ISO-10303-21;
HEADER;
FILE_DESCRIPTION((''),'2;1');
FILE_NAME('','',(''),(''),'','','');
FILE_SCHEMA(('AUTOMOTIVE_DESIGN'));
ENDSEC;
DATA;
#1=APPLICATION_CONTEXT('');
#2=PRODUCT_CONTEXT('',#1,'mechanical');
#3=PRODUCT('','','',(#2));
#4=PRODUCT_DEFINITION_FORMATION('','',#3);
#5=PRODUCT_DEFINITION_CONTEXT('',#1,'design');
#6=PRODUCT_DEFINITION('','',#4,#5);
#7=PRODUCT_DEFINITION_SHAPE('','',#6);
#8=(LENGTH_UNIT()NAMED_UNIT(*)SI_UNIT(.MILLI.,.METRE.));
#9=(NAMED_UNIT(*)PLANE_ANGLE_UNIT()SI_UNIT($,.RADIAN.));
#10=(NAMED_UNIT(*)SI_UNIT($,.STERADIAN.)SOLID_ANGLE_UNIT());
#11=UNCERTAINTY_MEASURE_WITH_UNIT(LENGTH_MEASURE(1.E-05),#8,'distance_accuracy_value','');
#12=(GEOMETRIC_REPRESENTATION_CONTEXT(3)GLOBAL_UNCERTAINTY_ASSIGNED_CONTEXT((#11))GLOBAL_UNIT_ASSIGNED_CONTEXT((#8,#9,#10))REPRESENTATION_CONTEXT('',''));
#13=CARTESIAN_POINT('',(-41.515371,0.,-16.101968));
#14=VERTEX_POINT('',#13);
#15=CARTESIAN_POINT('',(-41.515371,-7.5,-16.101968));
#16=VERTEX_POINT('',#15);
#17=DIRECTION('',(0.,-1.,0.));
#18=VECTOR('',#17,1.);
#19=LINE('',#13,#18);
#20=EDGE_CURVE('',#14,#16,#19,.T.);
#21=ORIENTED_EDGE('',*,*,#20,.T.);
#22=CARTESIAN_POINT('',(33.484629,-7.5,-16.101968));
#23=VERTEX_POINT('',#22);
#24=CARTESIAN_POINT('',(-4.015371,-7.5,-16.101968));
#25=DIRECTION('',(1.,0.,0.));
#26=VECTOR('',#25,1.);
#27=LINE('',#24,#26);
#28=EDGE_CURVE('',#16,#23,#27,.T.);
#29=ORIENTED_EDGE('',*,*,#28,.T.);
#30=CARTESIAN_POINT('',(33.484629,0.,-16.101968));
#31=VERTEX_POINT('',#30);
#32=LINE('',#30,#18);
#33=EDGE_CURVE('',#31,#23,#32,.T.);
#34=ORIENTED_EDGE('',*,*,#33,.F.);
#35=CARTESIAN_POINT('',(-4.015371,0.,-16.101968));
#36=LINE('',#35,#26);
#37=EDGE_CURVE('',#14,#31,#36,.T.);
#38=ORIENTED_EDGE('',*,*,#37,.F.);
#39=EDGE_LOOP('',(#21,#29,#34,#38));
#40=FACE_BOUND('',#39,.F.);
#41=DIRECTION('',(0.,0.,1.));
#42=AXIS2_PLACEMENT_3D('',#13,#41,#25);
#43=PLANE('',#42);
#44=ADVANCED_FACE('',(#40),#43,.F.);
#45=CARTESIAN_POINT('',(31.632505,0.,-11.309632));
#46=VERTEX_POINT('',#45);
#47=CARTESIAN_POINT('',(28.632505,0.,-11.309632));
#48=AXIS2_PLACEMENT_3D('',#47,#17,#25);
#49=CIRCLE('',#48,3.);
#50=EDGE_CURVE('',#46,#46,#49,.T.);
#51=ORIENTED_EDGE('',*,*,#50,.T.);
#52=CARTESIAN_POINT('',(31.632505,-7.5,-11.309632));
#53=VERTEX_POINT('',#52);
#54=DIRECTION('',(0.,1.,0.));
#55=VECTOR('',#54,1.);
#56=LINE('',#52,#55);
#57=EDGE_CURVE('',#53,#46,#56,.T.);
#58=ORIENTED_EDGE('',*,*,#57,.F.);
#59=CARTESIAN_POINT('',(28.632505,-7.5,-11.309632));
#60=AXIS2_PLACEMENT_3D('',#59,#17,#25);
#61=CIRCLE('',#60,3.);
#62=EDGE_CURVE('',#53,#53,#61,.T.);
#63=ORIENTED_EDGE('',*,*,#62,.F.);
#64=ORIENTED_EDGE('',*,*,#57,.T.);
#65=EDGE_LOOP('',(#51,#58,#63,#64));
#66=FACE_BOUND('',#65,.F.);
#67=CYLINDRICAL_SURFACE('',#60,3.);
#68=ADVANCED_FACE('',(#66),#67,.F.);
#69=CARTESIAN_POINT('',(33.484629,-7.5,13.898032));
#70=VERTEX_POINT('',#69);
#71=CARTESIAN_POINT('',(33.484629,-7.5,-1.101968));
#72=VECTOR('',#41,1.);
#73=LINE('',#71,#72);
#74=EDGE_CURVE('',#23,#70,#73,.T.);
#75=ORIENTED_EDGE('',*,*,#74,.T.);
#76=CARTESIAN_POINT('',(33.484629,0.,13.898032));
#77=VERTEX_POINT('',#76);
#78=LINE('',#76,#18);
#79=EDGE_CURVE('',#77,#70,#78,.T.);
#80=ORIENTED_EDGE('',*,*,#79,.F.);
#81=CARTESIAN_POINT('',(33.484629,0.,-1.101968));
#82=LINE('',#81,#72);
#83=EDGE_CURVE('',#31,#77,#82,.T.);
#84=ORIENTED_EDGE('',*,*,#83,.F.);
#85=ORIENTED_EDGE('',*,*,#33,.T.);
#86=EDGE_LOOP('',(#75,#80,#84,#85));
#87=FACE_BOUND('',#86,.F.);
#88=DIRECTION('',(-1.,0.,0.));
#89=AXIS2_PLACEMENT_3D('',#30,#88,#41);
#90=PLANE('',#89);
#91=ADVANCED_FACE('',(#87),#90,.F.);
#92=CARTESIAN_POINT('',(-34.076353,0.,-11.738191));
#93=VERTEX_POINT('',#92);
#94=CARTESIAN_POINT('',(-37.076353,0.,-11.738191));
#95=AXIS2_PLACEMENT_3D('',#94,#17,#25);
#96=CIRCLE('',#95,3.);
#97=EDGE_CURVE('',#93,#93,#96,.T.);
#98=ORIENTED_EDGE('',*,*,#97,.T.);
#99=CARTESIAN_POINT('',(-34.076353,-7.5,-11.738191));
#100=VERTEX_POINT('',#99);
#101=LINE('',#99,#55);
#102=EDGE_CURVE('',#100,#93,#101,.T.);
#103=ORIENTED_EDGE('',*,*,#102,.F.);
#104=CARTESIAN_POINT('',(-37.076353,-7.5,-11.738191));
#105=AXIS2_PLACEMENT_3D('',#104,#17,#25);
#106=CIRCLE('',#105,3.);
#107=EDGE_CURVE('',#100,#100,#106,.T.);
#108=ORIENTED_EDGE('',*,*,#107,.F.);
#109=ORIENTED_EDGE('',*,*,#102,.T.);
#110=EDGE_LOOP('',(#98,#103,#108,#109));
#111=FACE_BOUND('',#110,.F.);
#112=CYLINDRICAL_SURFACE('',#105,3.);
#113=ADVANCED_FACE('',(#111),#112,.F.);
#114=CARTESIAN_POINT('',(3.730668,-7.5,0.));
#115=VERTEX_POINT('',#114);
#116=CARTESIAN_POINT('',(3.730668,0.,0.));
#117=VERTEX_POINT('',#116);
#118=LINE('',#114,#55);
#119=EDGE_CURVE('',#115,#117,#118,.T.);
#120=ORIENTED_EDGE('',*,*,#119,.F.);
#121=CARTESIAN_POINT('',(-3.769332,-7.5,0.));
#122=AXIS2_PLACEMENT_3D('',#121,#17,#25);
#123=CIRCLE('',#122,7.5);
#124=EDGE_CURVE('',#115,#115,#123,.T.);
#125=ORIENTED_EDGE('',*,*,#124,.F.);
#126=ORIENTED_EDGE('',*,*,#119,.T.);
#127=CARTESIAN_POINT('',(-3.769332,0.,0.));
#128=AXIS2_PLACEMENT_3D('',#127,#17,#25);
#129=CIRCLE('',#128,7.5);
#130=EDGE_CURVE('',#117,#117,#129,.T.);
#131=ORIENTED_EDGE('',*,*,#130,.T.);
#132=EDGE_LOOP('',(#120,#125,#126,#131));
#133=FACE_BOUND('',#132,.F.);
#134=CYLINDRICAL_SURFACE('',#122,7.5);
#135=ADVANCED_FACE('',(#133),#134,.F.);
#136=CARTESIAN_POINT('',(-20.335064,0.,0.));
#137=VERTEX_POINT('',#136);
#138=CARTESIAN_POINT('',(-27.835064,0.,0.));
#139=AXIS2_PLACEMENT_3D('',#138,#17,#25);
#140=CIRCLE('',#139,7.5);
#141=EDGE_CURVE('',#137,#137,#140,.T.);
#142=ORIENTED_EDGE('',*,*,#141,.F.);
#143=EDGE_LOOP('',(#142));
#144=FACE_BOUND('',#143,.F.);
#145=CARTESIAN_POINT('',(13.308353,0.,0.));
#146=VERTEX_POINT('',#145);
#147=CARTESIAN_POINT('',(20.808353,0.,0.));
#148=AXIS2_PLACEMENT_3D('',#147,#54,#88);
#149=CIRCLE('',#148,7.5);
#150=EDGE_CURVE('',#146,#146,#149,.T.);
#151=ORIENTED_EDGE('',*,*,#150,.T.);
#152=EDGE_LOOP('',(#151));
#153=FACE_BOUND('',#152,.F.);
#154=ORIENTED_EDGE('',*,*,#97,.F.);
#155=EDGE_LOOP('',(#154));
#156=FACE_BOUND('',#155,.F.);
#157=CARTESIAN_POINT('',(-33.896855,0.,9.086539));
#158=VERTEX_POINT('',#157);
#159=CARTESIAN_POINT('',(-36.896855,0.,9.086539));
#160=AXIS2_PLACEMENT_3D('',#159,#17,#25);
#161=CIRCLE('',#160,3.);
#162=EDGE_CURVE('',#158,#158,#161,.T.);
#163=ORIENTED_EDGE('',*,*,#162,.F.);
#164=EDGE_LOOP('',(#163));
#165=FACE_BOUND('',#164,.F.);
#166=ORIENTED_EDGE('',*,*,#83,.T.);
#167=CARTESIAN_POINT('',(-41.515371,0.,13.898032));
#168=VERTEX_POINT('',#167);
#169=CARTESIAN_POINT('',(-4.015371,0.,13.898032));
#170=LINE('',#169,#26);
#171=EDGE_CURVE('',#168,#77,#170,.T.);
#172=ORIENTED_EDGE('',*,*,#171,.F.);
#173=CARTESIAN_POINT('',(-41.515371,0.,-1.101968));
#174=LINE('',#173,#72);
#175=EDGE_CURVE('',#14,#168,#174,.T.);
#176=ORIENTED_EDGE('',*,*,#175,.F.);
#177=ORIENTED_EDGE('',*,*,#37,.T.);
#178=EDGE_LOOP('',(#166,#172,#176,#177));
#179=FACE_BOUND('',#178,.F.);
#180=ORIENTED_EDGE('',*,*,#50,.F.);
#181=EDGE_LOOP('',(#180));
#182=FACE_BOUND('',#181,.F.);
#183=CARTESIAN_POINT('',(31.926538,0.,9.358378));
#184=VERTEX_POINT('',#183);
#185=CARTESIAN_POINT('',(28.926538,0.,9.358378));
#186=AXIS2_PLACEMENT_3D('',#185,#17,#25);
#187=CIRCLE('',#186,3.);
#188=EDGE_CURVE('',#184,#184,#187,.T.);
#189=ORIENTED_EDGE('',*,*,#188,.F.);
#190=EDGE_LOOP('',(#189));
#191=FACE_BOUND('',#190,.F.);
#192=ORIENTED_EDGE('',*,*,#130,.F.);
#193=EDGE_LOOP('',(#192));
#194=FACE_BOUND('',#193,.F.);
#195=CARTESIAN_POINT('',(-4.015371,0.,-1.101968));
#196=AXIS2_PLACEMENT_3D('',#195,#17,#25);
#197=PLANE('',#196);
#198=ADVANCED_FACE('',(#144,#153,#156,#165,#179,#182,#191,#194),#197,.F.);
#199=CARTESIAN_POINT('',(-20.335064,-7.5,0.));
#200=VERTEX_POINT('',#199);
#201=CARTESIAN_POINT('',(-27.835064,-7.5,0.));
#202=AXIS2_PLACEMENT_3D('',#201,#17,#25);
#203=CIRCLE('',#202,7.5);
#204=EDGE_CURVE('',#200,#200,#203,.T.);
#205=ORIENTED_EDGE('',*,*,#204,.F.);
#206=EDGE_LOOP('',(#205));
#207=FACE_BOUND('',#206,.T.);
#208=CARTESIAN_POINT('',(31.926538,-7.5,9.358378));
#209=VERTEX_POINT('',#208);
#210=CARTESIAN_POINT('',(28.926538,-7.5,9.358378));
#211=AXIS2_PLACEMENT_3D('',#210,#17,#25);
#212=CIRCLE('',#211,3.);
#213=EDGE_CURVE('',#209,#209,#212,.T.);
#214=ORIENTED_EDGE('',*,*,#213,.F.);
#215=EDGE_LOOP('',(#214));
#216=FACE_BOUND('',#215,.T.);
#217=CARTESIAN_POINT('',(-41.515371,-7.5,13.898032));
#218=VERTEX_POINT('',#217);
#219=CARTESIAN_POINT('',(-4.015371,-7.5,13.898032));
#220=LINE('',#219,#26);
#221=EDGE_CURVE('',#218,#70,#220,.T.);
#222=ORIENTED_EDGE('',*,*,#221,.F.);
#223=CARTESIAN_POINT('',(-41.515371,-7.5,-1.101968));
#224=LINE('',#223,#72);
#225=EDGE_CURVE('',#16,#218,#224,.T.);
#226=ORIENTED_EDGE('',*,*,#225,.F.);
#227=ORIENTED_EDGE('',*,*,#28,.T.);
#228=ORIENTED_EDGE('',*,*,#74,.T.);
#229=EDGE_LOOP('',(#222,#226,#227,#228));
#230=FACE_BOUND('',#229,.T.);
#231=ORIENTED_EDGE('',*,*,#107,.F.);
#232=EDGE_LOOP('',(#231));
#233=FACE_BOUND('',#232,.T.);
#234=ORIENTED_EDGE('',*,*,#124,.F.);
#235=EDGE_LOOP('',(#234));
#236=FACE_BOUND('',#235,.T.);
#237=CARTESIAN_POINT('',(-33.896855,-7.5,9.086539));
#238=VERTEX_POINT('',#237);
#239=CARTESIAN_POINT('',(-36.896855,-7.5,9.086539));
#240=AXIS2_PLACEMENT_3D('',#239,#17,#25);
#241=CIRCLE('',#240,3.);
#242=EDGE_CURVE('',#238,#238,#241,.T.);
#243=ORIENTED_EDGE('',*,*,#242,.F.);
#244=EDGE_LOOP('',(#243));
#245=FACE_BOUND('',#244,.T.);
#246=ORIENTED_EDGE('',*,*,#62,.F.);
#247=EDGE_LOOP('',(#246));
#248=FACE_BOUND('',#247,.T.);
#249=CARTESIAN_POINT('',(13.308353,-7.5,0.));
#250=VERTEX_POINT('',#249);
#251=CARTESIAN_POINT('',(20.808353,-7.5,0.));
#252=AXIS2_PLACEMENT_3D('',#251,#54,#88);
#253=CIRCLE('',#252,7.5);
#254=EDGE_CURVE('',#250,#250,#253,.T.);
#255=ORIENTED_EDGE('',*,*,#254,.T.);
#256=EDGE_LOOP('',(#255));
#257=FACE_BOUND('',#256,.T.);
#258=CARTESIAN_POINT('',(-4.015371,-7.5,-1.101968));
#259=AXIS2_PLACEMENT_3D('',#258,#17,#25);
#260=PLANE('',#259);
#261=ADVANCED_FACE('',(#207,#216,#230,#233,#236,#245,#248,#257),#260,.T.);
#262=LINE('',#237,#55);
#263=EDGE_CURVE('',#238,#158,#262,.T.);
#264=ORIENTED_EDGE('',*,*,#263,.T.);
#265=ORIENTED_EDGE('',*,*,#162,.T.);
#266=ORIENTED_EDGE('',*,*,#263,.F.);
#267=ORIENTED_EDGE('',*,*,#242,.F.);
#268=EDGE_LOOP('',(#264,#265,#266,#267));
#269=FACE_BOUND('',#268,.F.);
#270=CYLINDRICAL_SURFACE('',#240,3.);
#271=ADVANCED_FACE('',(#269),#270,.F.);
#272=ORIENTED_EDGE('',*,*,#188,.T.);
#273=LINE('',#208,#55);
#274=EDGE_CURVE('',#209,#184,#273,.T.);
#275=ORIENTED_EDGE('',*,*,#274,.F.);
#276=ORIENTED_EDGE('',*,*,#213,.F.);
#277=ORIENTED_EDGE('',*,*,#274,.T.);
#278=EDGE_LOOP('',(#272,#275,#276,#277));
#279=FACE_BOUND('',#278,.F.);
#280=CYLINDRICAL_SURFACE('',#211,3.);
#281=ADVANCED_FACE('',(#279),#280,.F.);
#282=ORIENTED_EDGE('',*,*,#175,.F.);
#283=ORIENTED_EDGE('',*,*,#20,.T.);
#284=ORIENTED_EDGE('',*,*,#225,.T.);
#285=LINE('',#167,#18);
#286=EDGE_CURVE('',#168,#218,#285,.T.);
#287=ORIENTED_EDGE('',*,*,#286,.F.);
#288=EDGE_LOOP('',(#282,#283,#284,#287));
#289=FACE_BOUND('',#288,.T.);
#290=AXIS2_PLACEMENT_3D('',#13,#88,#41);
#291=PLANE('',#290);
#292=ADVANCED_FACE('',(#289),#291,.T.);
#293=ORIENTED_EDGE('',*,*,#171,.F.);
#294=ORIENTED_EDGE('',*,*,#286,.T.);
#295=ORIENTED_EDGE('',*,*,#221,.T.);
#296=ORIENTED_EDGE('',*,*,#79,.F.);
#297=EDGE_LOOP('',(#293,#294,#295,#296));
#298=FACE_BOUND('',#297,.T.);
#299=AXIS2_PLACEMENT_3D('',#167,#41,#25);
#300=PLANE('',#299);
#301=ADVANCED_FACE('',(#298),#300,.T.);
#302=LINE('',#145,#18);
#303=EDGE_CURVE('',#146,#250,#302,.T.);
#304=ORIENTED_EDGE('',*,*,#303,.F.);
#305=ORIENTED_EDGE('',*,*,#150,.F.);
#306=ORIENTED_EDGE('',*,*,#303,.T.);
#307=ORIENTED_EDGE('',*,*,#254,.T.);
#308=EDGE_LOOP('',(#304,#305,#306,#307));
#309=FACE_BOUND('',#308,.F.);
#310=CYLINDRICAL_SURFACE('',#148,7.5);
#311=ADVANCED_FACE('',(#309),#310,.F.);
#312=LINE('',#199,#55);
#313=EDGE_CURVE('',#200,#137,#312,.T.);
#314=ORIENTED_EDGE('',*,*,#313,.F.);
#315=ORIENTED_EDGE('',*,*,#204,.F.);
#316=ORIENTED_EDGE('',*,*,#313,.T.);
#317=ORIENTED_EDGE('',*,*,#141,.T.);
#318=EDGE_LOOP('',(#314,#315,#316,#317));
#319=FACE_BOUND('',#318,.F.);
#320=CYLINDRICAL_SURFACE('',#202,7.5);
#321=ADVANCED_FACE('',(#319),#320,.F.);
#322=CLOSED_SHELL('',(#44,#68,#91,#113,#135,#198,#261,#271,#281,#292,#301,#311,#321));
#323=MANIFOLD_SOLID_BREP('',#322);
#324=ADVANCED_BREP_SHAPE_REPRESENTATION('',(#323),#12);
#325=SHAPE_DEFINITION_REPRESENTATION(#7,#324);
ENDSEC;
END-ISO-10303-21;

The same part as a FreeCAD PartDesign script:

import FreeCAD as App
import Part
import Sketcher
from FreeCAD import Vector


def add_polygon(sketch, points):
    """Adds a closed chain of lines whose ends are joined by coincident constraints."""
    first, n = sketch.GeometryCount, len(points)
    for a, b in zip(points, points[1:] + points[:1]):
        sketch.addGeometry(Part.LineSegment(App.Vector(*a, 0), App.Vector(*b, 0)), False)
    for i in range(n):
        sketch.addConstraint(Sketcher.Constraint("Coincident", first + i, 2, first + (i + 1) % n, 1))

doc = App.newDocument("Part")
body = doc.addObject("PartDesign::Body", "Body")

# Sketch on XZ plane
sketch1 = body.newObject("Sketcher::SketchObject", "Sketch")
sketch1.AttachmentSupport = (doc.getObject("XZ_Plane"), [""])
sketch1.MapMode = "FlatFace"
add_polygon(sketch1, [(-42, 14), (-42, -16), (33, -16), (33, 14)])  # lines 0-3
sketch1.addConstraint(Sketcher.Constraint("Vertical", 0))
sketch1.addConstraint(Sketcher.Constraint("Horizontal", 1))
sketch1.addConstraint(Sketcher.Constraint("Vertical", 2))
sketch1.addConstraint(Sketcher.Constraint("Horizontal", 3))
sketch1.addConstraint(Sketcher.Constraint("DistanceX", 1, 1, 1, 2, 75.0))
sketch1.addConstraint(Sketcher.Constraint("DistanceY", 0, 2, 0, 1, 30.0))
sketch1.addConstraint(Sketcher.Constraint("DistanceX", 0, 2, -1, 1, 41.515371))
sketch1.addConstraint(Sketcher.Constraint("DistanceY", 0, 2, -1, 1, 16.101968))
pad1 = body.newObject("PartDesign::Pad", "Pad")
pad1.Profile = sketch1
pad1.Length = 7.5

# Sketch on XZ plane
sketch2 = body.newObject("Sketcher::SketchObject", "Sketch001")
sketch2.AttachmentSupport = (doc.getObject("XZ_Plane"), [""])
sketch2.MapMode = "FlatFace"
sketch2.addGeometry(Part.Circle(Vector(21, 0, 0), Vector(0, 0, 1), 8), False)
sketch2.addConstraint(Sketcher.Constraint("PointOnObject", 0, 3, -1))
sketch2.addConstraint(Sketcher.Constraint("Diameter", 0, 15.0))
sketch2.addConstraint(Sketcher.Constraint("DistanceX", -1, 1, 0, 3, 20.808353))
pocket1 = body.newObject("PartDesign::Pocket", "Pocket")
pocket1.Profile = sketch2
pocket1.Length = 25
pocket1.Reversed = True

# Sketch on XZ plane
sketch3 = body.newObject("Sketcher::SketchObject", "Sketch002")
sketch3.AttachmentSupport = (doc.getObject("XZ_Plane"), [""])
sketch3.MapMode = "FlatFace"
sketch3.AttachmentOffset = App.Placement(Vector(0, 0, 7.5), App.Rotation())
sketch3.addGeometry(Part.Circle(Vector(-4, 0, 0), Vector(0, 0, 1), 8), False)
sketch3.addGeometry(Part.Circle(Vector(-28, 0, 0), Vector(0, 0, 1), 8), False)
sketch3.addConstraint(Sketcher.Constraint("Equal", 0, 1))
sketch3.addConstraint(Sketcher.Constraint("PointOnObject", 0, 3, -1))
sketch3.addConstraint(Sketcher.Constraint("PointOnObject", 1, 3, -1))
sketch3.addConstraint(Sketcher.Constraint("Diameter", 0, 15.0))
sketch3.addConstraint(Sketcher.Constraint("DistanceX", 0, 3, -1, 1, 3.769332))
sketch3.addConstraint(Sketcher.Constraint("DistanceX", 1, 3, -1, 1, 27.835064))
pocket2 = body.newObject("PartDesign::Pocket", "Pocket001")
pocket2.Profile = sketch3
pocket2.Length = 25

# Sketch on XZ plane
sketch4 = body.newObject("Sketcher::SketchObject", "Sketch003")
sketch4.AttachmentSupport = (doc.getObject("XZ_Plane"), [""])
sketch4.MapMode = "FlatFace"
sketch4.AttachmentOffset = App.Placement(Vector(0, 0, 7.5), App.Rotation())
sketch4.addGeometry(Part.Circle(Vector(-36.9, 9.1, 0), Vector(0, 0, 1), 3), False)
sketch4.addGeometry(Part.Circle(Vector(-37.1, -11.7, 0), Vector(0, 0, 1), 3), False)
sketch4.addGeometry(Part.Circle(Vector(28.9, 9.4, 0), Vector(0, 0, 1), 3), False)
sketch4.addGeometry(Part.Circle(Vector(28.6, -11.3, 0), Vector(0, 0, 1), 3), False)
sketch4.addConstraint(Sketcher.Constraint("Equal", 0, 1))
sketch4.addConstraint(Sketcher.Constraint("Equal", 1, 2))
sketch4.addConstraint(Sketcher.Constraint("Equal", 2, 3))
sketch4.addConstraint(Sketcher.Constraint("Diameter", 0, 6.0))
sketch4.addConstraint(Sketcher.Constraint("DistanceY", -1, 1, 0, 3, 9.086539))
sketch4.addConstraint(Sketcher.Constraint("DistanceY", 1, 3, -1, 1, 11.738191))
sketch4.addConstraint(Sketcher.Constraint("DistanceX", -1, 1, 2, 3, 28.926538))
sketch4.addConstraint(Sketcher.Constraint("DistanceY", 0, 3, 2, 3, 0.271839))
sketch4.addConstraint(Sketcher.Constraint("DistanceX", 1, 3, 2, 3, 66.002891))
sketch4.addConstraint(Sketcher.Constraint("DistanceY", 3, 3, 2, 3, 20.66801))
sketch4.addConstraint(Sketcher.Constraint("DistanceX", 0, 3, 3, 3, 65.52936))
sketch4.addConstraint(Sketcher.Constraint("DistanceX", 0, 3, -1, 1, 36.896855))
pocket3 = body.newObject("PartDesign::Pocket", "Pocket002")
pocket3.Profile = sketch4
pocket3.Type = "ThroughAll"

doc.recompute()
